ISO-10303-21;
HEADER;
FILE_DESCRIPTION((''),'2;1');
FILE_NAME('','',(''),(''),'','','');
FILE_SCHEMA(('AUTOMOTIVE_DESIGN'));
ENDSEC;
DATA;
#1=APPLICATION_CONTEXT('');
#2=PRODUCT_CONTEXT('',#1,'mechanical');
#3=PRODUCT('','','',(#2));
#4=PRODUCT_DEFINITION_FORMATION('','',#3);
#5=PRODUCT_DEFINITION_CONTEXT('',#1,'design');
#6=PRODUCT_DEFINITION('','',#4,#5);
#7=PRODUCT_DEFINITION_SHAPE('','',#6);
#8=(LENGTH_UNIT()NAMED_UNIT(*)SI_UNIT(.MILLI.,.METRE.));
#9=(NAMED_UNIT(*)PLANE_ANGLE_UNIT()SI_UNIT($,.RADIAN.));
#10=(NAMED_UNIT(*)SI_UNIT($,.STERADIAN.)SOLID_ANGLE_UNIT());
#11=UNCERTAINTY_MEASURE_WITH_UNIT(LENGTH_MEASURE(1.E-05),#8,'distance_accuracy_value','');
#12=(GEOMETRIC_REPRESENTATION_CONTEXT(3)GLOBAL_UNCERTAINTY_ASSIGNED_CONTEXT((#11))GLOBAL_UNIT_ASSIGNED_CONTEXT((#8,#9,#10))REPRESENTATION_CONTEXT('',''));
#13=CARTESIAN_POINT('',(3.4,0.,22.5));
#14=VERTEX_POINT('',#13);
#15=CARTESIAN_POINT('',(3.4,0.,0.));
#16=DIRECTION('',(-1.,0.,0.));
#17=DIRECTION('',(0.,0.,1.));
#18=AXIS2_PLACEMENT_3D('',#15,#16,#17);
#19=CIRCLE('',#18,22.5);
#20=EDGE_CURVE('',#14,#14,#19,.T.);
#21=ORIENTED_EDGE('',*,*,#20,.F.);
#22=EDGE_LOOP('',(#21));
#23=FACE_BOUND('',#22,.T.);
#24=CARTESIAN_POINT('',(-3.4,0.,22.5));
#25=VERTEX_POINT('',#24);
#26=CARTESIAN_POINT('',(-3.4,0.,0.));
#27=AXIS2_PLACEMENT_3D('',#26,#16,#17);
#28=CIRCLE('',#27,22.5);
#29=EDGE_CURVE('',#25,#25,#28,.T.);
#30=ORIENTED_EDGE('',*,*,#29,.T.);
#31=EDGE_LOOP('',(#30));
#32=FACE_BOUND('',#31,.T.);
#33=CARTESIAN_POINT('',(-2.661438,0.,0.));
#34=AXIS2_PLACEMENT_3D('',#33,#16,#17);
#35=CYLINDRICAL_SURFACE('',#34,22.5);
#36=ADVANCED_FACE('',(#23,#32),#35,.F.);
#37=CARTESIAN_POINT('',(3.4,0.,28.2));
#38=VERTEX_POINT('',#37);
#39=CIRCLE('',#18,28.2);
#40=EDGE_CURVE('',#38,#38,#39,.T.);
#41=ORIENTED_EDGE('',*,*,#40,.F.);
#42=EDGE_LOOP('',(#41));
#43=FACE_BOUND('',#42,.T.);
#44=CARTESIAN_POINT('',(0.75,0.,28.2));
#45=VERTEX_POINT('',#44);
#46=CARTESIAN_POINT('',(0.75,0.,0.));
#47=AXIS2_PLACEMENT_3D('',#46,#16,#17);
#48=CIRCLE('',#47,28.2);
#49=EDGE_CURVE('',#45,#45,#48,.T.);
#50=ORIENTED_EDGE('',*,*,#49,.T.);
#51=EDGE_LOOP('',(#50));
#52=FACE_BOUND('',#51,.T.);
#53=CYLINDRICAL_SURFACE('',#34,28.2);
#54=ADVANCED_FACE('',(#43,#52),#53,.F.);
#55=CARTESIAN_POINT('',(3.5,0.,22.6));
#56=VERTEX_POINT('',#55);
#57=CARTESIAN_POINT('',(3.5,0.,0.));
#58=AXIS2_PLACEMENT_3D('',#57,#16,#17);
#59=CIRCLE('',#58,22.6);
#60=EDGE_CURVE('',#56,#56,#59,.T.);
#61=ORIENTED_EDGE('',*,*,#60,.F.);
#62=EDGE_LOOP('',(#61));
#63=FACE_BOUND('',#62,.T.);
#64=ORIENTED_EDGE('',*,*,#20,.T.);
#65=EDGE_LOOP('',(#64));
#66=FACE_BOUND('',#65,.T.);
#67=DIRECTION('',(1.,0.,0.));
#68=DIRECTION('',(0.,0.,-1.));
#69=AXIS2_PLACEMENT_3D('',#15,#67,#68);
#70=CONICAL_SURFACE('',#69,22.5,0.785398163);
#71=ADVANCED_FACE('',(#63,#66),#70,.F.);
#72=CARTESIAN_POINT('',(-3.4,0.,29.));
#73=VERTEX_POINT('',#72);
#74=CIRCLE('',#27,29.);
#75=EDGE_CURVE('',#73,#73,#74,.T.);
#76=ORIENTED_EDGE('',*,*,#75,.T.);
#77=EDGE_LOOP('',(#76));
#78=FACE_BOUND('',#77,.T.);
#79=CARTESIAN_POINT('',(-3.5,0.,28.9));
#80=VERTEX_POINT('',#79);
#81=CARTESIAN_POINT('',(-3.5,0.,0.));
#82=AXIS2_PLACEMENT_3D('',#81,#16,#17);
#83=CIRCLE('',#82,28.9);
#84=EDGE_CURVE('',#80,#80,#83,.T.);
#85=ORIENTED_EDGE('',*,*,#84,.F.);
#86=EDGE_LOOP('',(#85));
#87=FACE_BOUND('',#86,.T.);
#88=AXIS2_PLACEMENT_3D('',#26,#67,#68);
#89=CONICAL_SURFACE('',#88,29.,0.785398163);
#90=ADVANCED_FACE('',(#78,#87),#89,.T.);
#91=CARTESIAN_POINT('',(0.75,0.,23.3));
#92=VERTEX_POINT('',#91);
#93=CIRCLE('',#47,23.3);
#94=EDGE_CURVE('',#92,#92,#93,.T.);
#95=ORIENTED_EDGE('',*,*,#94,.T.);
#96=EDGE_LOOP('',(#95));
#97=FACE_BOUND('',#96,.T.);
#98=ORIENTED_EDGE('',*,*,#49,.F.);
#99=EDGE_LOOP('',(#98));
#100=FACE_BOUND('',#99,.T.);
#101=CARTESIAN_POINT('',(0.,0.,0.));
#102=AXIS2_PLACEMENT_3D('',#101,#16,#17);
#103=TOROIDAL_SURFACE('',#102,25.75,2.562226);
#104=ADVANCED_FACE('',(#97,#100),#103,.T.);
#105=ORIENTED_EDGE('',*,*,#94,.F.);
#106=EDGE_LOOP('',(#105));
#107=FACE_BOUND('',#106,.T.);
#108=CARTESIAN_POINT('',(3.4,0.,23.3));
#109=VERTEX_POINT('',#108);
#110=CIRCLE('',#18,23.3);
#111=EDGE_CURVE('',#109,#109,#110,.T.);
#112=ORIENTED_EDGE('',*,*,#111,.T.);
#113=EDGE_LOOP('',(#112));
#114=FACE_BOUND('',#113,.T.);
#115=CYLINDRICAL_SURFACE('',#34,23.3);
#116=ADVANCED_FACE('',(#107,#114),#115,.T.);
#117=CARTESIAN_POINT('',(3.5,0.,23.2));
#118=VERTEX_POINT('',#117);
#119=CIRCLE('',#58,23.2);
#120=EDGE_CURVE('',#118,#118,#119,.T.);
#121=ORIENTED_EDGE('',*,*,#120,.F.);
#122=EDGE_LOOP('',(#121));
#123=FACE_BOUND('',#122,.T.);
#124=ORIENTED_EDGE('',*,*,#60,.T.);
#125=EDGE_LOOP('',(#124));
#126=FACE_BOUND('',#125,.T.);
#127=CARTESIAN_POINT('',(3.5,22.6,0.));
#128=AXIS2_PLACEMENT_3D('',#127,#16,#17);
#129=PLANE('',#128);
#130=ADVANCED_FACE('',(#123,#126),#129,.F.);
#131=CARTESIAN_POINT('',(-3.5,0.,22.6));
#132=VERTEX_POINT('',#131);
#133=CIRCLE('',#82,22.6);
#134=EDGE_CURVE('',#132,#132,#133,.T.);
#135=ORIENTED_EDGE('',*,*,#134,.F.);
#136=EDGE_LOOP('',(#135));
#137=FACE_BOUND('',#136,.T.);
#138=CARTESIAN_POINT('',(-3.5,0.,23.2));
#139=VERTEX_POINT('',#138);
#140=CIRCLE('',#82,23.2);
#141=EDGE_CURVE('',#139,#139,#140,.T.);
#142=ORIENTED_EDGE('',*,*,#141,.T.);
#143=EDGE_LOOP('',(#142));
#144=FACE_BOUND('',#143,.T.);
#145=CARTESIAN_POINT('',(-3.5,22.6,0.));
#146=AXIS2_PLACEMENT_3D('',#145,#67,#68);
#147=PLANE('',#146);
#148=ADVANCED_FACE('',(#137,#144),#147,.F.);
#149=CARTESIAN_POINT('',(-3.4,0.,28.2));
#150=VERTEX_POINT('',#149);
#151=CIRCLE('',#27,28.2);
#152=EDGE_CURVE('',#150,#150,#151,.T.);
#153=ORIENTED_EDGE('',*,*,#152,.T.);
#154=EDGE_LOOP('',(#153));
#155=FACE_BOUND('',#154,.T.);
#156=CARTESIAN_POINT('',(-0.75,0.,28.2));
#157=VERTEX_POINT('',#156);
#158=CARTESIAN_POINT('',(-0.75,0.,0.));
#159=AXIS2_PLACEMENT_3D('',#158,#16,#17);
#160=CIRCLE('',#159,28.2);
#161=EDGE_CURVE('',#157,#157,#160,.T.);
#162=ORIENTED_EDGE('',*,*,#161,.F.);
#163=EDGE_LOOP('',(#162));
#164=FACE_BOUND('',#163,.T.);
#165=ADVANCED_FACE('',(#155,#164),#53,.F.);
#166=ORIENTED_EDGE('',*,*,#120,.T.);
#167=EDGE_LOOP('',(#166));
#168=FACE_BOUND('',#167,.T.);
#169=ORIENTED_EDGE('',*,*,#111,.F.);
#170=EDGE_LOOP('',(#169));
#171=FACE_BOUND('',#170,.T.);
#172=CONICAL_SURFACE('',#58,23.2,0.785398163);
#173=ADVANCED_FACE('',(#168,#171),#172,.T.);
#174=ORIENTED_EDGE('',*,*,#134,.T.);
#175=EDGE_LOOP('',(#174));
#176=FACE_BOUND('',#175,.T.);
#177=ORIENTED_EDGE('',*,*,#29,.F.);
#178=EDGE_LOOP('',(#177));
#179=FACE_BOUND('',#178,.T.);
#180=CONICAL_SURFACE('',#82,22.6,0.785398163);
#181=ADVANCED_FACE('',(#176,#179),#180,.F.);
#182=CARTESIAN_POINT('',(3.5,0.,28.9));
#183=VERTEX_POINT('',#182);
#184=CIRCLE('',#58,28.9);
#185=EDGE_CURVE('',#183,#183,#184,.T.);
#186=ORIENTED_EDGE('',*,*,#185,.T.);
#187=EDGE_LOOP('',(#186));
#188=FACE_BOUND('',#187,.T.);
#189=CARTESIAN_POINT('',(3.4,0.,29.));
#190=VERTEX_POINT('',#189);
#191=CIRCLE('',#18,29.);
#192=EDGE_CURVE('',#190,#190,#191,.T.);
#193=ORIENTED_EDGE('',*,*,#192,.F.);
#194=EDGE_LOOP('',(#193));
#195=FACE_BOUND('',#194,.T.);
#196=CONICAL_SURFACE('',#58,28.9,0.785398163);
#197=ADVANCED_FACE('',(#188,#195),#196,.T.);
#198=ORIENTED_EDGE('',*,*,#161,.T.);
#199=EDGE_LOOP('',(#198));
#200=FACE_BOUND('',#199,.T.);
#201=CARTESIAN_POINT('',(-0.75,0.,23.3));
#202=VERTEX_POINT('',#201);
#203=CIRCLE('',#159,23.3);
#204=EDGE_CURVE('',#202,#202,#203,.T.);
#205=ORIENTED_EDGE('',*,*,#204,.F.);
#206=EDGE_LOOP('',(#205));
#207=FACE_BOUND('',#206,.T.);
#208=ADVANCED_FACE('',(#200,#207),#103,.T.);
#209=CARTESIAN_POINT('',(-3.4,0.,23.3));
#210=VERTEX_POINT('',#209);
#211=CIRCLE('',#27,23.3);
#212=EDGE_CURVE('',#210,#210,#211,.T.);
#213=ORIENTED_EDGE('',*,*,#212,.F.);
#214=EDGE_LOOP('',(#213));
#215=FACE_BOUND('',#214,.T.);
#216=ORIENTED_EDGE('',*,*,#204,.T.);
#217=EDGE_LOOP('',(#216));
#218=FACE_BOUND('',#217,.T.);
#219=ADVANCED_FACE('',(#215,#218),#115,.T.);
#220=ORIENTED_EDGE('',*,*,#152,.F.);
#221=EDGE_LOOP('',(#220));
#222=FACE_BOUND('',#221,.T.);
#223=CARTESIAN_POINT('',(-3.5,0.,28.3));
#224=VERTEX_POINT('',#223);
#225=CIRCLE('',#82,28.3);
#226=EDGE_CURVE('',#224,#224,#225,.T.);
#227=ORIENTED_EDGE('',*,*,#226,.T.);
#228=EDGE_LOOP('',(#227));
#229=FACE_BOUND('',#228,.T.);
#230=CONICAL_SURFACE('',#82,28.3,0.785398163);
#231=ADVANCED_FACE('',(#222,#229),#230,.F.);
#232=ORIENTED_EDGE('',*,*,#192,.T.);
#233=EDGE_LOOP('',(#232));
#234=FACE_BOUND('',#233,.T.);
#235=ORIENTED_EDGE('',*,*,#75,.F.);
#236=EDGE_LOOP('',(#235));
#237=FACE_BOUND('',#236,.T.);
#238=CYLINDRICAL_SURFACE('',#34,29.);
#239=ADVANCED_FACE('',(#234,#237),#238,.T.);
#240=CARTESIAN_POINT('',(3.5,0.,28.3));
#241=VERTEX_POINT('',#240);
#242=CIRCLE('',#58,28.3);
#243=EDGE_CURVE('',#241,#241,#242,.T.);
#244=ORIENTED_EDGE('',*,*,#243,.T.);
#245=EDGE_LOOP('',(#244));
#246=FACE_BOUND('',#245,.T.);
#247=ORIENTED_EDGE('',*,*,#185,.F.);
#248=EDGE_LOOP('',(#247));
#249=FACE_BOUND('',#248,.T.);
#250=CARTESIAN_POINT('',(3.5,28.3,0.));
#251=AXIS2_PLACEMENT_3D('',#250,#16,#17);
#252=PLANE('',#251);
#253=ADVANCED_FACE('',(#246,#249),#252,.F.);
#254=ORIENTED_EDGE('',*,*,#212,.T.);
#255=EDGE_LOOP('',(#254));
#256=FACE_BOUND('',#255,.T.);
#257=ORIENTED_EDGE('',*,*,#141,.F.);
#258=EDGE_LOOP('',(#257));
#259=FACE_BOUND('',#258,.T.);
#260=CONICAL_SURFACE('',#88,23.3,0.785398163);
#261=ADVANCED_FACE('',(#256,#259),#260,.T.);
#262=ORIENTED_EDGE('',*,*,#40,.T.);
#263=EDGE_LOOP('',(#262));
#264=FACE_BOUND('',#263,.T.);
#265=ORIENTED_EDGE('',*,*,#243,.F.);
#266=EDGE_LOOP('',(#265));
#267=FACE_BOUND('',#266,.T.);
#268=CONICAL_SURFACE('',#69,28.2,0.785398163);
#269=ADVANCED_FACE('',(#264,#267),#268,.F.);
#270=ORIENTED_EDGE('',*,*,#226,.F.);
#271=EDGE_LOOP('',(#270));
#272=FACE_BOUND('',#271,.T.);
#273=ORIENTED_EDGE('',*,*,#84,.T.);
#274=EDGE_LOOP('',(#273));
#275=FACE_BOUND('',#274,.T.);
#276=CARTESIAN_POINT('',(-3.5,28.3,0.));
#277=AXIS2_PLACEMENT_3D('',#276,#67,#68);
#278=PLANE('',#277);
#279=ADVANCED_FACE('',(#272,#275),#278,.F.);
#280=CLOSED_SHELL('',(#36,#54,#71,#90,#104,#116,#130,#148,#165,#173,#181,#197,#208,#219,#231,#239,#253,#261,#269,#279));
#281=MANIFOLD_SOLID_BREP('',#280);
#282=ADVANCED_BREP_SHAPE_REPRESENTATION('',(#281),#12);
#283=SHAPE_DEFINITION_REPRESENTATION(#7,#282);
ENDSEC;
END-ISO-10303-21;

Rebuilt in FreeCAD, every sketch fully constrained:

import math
import FreeCAD as App
import Part
import Sketcher
from FreeCAD import Vector
Q = App.Units.Quantity

doc = App.newDocument("Part")
body = doc.addObject("PartDesign::Body", "Body")

sketch1 = body.newObject("Sketcher::SketchObject", "Sketch")
sketch1.AttachmentSupport = (doc.getObject("XY_Plane"), [""])
sketch1.MapMode = "FlatFace"
sketch1.addGeometry([
    Part.LineSegment(Vector(-3.4, 29, 0), Vector(-3.5, 28.9, 0)),
    Part.LineSegment(Vector(-3.5, 28.9, 0), Vector(-3.5, 28.3, 0)),
    Part.LineSegment(Vector(-3.5, 28.3, 0), Vector(-3.4, 28.2, 0)),
    Part.LineSegment(Vector(-3.4, 28.2, 0), Vector(-0.75, 28.2, 0)),
    Part.ArcOfCircle(Part.Circle(Vector(0, 25.75, 0), Vector(0, 0, 1), 2.56), math.radians(107), math.radians(253)),
    Part.LineSegment(Vector(-0.75, 23.3, 0), Vector(-3.4, 23.3, 0)),
    Part.LineSegment(Vector(-3.4, 23.3, 0), Vector(-3.5, 23.2, 0)),
    Part.LineSegment(Vector(-3.5, 23.2, 0), Vector(-3.5, 22.6, 0)),
    Part.LineSegment(Vector(-3.5, 22.6, 0), Vector(-3.4, 22.5, 0)),
    Part.LineSegment(Vector(-3.4, 22.5, 0), Vector(3.4, 22.5, 0)),
    Part.LineSegment(Vector(3.4, 22.5, 0), Vector(3.5, 22.6, 0)),
    Part.LineSegment(Vector(3.5, 22.6, 0), Vector(3.5, 23.2, 0)),
    Part.LineSegment(Vector(3.5, 23.2, 0), Vector(3.4, 23.3, 0)),
    Part.LineSegment(Vector(3.4, 23.3, 0), Vector(0.75, 23.3, 0)),
    Part.ArcOfCircle(Part.Circle(Vector(0, 25.75, 0), Vector(0, 0, 1), 2.56), math.radians(-73), math.radians(73)),
    Part.LineSegment(Vector(0.75, 28.2, 0), Vector(3.4, 28.2, 0)),
    Part.LineSegment(Vector(3.4, 28.2, 0), Vector(3.5, 28.3, 0)),
    Part.LineSegment(Vector(3.5, 28.3, 0), Vector(3.5, 28.9, 0)),
    Part.LineSegment(Vector(3.5, 28.9, 0), Vector(3.4, 29, 0)),
    Part.LineSegment(Vector(3.4, 29, 0), Vector(-3.4, 29, 0)),
], False)
sketch1.addConstraint([
    Sketcher.Constraint("Coincident", 0, 2, 1, 1),
    Sketcher.Constraint("Coincident", 1, 2, 2, 1),
    Sketcher.Constraint("Coincident", 2, 2, 3, 1),
    Sketcher.Constraint("Coincident", 3, 2, 4, 1),
    Sketcher.Constraint("Coincident", 4, 2, 5, 1),
    Sketcher.Constraint("Coincident", 5, 2, 6, 1),
    Sketcher.Constraint("Coincident", 6, 2, 7, 1),
    Sketcher.Constraint("Coincident", 7, 2, 8, 1),
    Sketcher.Constraint("Coincident", 8, 2, 9, 1),
    Sketcher.Constraint("Coincident", 9, 2, 10, 1),
    Sketcher.Constraint("Coincident", 10, 2, 11, 1),
    Sketcher.Constraint("Coincident", 11, 2, 12, 1),
    Sketcher.Constraint("Coincident", 12, 2, 13, 1),
    Sketcher.Constraint("Coincident", 13, 2, 14, 1),
    Sketcher.Constraint("Coincident", 14, 2, 15, 1),
    Sketcher.Constraint("Coincident", 15, 2, 16, 1),
    Sketcher.Constraint("Coincident", 16, 2, 17, 1),
    Sketcher.Constraint("Coincident", 17, 2, 18, 1),
    Sketcher.Constraint("Coincident", 18, 2, 19, 1),
    Sketcher.Constraint("Coincident", 19, 2, 0, 1),
    Sketcher.Constraint("Vertical", 1),
    Sketcher.Constraint("Horizontal", 3),
    Sketcher.Constraint("Horizontal", 5),
    Sketcher.Constraint("Vertical", 7),
    Sketcher.Constraint("Horizontal", 9),
    Sketcher.Constraint("Vertical", 11),
    Sketcher.Constraint("Horizontal", 13),
    Sketcher.Constraint("Horizontal", 15),
    Sketcher.Constraint("Vertical", 17),
    Sketcher.Constraint("Horizontal", 19),
    Sketcher.Constraint("Coincident", 14, 3, 4, 3),
    Sketcher.Constraint("Equal", 4, 14),
    Sketcher.Constraint("Symmetric", 7, 2, 10, 2, -2),
    Sketcher.Constraint("Symmetric", 5, 2, 12, 2, -2),
    Sketcher.Constraint("Symmetric", 3, 2, 14, 2, -2),
    Sketcher.Constraint("Symmetric", 1, 2, 16, 2, -2),
    Sketcher.Constraint("Perpendicular", 0, 2),
    Sketcher.Constraint("Perpendicular", 2, 6),
    Sketcher.Constraint("Perpendicular", 6, 8),
    Sketcher.Constraint("Perpendicular", 8, 10),
    Sketcher.Constraint("Perpendicular", 10, 12),
    Sketcher.Constraint("Perpendicular", 12, 16),
    Sketcher.Constraint("Perpendicular", 16, 18),
    Sketcher.Constraint("Horizontal", 6, 2, 11, 2),
    Sketcher.Constraint("Horizontal", 0, 2, 17, 2),
    Sketcher.Constraint("Vertical", 3, 2, 4, 2),
    Sketcher.Constraint("Vertical", 2, 2, 5, 2),
    Sketcher.Constraint("Vertical", 1, 2, 6, 2),
    Sketcher.Constraint("Vertical", 5, 2, 8, 2),
    Sketcher.Constraint("Vertical", 15, 2, 18, 2),
    Sketcher.Constraint("Equal", 1, 7),
    Sketcher.Constraint("DistanceX", 9, 1, 9, 2, Q("6.8 mm")),
    Sketcher.Constraint("DistanceY", 1, 2, 1, 1, Q("0.6 mm")),
    Sketcher.Constraint("DistanceY", -1, 1, 18, 2, Q("29 mm")),
    Sketcher.Constraint("DistanceY", 4, 2, 1, 2, Q("5 mm")),
    Sketcher.Constraint("DistanceX", 3, 1, 3, 2, Q("2.65 mm")),
    Sketcher.Constraint("DistanceX", 0, 2, -1, 1, Q("3.5 mm")),
])
revolution = body.newObject("PartDesign::Revolution", "Revolution")
revolution.Profile = sketch1
revolution.ReferenceAxis = (sketch1, ["H_Axis"])
revolution.Angle = 360

doc.recompute()
